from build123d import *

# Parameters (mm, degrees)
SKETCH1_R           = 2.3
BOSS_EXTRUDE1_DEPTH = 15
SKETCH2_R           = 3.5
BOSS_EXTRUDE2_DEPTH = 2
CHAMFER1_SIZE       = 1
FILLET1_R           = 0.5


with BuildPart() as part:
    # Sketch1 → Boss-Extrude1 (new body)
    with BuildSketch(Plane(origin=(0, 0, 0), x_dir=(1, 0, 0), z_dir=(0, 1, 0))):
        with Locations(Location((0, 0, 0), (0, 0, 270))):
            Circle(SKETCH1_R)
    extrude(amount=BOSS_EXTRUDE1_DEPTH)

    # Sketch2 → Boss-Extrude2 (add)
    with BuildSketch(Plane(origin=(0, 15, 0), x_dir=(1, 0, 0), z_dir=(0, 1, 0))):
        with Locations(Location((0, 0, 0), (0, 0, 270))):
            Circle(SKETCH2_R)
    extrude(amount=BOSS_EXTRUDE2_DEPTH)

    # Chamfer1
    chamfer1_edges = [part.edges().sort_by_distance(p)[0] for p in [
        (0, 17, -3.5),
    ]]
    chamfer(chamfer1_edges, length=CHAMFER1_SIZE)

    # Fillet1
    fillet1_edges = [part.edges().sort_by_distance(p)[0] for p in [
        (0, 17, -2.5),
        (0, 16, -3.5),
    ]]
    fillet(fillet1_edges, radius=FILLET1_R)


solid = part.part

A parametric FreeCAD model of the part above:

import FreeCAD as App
import Part
import Sketcher

V = App.Vector
Q = App.Units.Quantity


def edges_at(feature, points):
    """Names of the edges that pass closest to the given points."""
    edges = feature.Shape.Edges
    near = lambda p: min(range(len(edges)), key=lambda i: edges[i].distToShape(Part.Vertex(*p))[0])
    return sorted({f"Edge{near(p) + 1}" for p in points})

doc = App.newDocument("Part")
body = doc.addObject("PartDesign::Body", "Body")

# Sketch on XZ plane
sketch1 = doc.addObject("Sketcher::SketchObject", "Sketch")
body.addObject(sketch1)
sketch1.AttachmentSupport = (doc.XZ_Plane, [""])
sketch1.MapMode = "FlatFace"
sketch1.addGeometry(Part.Circle(V(0, 0, 0), V(0, 0, 1), 2.3), False)
sketch1.addConstraint(Sketcher.Constraint("Coincident", 0, 3, -1, 1))
sketch1.addConstraint(Sketcher.Constraint("Diameter", 0, Q("4.6 mm")))
pad1 = doc.addObject("PartDesign::Pad", "Pad")
body.addObject(pad1)
pad1.Profile = sketch1
pad1.Length = 15
pad1.Reversed = True

# Sketch on XZ plane
sketch2 = doc.addObject("Sketcher::SketchObject", "Sketch001")
body.addObject(sketch2)
sketch2.AttachmentSupport = (doc.XZ_Plane, [""])
sketch2.MapMode = "FlatFace"
sketch2.AttachmentOffset = App.Placement(V(0, 0, -15), App.Rotation())
sketch2.addGeometry(Part.Circle(V(0, 0, 0), V(0, 0, 1), 3.5), False)
sketch2.addConstraint(Sketcher.Constraint("Coincident", 0, 3, -1, 1))
sketch2.addConstraint(Sketcher.Constraint("Diameter", 0, Q("7 mm")))
pad2 = doc.addObject("PartDesign::Pad", "Pad001")
body.addObject(pad2)
pad2.Profile = sketch2
pad2.Length = 2
pad2.Reversed = True
doc.recompute()

chamfer = doc.addObject("PartDesign::Chamfer", "Chamfer")
body.addObject(chamfer)
chamfer.Base = (pad2, edges_at(pad2, [(0, 17, -3.5)]))
chamfer.Size = 1
doc.recompute()

fillet = doc.addObject("PartDesign::Fillet", "Fillet")
body.addObject(fillet)
fillet.Base = (chamfer, edges_at(chamfer, [(0, 17, -2.5), (0, 16, -3.5)]))
fillet.Radius = 0.5

doc.recompute()
